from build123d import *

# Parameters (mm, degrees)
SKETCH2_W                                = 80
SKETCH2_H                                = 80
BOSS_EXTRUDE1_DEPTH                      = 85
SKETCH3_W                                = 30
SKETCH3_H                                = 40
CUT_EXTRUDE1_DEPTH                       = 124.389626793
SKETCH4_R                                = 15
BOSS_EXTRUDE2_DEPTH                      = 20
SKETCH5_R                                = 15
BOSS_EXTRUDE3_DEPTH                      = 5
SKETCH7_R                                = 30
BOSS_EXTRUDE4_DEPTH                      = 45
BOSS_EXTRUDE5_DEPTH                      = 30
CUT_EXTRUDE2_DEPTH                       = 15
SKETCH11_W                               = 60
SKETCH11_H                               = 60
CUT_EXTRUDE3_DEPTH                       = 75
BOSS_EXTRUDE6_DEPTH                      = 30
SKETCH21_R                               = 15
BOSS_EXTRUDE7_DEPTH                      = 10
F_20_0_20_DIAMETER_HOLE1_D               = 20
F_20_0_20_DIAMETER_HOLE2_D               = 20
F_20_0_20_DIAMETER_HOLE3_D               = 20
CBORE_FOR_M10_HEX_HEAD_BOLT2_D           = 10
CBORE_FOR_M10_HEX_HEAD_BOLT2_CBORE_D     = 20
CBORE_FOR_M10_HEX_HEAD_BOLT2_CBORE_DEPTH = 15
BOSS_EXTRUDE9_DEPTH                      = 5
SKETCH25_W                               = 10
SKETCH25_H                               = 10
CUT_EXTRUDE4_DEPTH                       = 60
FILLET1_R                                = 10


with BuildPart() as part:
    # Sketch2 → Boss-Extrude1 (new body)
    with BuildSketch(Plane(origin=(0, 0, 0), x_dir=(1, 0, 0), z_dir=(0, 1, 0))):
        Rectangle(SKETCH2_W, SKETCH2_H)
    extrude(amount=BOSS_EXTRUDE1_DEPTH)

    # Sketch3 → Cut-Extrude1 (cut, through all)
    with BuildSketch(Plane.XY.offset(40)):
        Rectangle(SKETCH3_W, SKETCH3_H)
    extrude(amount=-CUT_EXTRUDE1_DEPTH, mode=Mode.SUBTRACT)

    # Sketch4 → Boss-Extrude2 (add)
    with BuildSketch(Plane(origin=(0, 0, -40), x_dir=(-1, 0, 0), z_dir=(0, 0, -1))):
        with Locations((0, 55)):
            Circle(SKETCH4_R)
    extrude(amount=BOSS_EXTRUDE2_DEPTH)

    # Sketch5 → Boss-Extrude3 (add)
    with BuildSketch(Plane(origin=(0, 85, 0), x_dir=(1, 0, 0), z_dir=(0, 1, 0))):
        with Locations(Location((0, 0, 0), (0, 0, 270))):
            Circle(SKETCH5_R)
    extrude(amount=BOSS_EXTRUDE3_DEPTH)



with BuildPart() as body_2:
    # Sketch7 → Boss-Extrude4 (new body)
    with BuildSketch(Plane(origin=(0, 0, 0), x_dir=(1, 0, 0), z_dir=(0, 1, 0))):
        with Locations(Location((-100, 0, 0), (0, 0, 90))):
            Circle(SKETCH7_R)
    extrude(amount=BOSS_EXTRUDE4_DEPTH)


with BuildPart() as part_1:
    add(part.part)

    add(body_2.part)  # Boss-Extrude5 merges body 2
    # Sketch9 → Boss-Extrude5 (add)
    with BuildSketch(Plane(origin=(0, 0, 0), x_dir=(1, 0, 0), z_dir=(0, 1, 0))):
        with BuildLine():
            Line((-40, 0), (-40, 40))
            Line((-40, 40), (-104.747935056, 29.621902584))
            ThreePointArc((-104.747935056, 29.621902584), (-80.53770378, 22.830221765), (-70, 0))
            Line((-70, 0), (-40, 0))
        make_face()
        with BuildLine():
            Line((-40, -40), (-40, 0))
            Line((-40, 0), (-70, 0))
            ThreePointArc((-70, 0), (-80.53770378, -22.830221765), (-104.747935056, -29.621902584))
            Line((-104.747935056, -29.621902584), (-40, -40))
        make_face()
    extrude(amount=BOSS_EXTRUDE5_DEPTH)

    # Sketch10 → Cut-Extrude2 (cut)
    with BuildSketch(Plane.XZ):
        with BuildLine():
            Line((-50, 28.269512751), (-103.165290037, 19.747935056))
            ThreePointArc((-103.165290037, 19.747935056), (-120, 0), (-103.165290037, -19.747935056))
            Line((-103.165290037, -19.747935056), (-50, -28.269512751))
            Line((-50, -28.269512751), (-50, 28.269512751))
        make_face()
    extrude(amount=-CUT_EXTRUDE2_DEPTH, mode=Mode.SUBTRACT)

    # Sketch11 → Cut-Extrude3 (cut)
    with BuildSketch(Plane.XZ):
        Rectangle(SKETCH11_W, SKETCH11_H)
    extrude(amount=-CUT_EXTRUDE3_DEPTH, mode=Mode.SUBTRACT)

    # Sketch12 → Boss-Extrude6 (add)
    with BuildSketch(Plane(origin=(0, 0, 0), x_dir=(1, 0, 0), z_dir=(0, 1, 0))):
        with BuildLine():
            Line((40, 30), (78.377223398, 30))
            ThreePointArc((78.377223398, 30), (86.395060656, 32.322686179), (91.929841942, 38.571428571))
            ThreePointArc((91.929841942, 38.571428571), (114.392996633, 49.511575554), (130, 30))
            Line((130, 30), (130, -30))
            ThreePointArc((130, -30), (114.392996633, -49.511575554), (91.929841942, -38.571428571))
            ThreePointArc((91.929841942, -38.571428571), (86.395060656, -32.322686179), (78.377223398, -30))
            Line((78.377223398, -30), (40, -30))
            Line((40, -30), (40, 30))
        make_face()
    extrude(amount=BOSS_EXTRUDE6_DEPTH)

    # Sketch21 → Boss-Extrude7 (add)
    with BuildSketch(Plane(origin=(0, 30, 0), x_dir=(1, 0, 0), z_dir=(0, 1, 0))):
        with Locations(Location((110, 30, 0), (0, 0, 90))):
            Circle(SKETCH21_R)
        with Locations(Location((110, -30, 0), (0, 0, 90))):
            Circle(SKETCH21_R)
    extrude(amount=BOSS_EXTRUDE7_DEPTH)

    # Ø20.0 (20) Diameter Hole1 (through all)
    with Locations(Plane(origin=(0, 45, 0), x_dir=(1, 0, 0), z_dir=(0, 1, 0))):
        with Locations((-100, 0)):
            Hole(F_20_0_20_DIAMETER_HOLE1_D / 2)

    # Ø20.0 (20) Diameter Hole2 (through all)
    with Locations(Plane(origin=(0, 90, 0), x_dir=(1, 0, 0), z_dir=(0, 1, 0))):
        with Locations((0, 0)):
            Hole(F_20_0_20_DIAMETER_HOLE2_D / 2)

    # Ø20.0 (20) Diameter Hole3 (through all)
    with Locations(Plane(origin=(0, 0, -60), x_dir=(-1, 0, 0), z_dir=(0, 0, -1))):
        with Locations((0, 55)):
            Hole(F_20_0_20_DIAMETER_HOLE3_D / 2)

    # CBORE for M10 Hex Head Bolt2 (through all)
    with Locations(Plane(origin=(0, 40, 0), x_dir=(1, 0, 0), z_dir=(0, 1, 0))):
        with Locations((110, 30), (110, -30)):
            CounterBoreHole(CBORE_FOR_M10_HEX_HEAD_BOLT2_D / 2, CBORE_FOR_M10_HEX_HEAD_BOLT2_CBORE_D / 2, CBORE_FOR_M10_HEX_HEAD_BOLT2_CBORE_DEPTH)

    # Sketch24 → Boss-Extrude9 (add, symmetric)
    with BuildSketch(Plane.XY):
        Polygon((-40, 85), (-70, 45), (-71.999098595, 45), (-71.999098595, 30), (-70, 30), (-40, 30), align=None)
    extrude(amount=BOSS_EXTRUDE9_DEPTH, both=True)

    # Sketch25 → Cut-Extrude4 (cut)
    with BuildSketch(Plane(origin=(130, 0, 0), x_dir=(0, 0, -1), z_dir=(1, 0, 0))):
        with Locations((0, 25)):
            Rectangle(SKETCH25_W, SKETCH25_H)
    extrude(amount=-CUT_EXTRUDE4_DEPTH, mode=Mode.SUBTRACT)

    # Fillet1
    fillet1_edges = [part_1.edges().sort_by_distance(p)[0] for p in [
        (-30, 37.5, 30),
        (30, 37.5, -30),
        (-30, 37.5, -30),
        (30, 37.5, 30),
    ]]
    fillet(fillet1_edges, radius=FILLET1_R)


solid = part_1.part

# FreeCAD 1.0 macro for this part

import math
import FreeCAD as App
import Part
import Sketcher
Q = App.Units.Quantity


def edges_at(feature, points):
    """Names of the edges that pass closest to the given points."""
    edges = feature.Shape.Edges
    near = lambda p: min(range(len(edges)), key=lambda i: edges[i].distToShape(Part.Vertex(*p))[0])
    return sorted({f"Edge{near(p) + 1}" for p in points})

doc = App.newDocument("Part")
params = doc.addObject("Spreadsheet::Sheet", "Params")
for row, (alias, value) in enumerate([
    ("sketch1_width", "80 mm"),
    ("pad1_length", "85 mm"),
    ("sketch2_width", "30 mm"),
    ("sketch2_height", "40 mm"),
    ("sketch3_diameter", "30 mm"),
    ("pad2_length", "20 mm"),
    ("sketch4_diameter", "30 mm"),
    ("pad3_length", "5 mm"),
    ("sketch5_diameter", "60 mm"),
    ("pad4_length", "45 mm"),
    ("sketch6_radius", "30 mm"),
    ("sketch6_height", "80 mm"),
    ("pad5_length", "30 mm"),
    ("sketch7_radius", "20 mm"),
    ("pocket2_length", "15 mm"),
    ("sketch8_width", "60 mm"),
    ("pocket3_length", "75 mm"),
    ("sketch9_radius", "15 mm"),
    ("sketch9_radius2", "20 mm"),
    ("sketch9_height", "60 mm"),
    ("pad6_length", "30 mm"),
    ("sketch10_diameter", "30 mm"),
    ("pad7_length", "10 mm"),
    ("sketch11_diameter", "20 mm"),
    ("hole_diameter", "20 mm"),
    ("sketch12_diameter", "20 mm"),
    ("hole2_diameter", "20 mm"),
    ("sketch13_diameter", "20 mm"),
    ("hole3_diameter", "20 mm"),
    ("sketch14_diameter", "10 mm"),
    ("hole4_diameter", "10 mm"),
    ("hole4_cbore_diameter", "20 mm"),
    ("hole4_cbore_depth", "15 mm"),
    ("sketch15_height", "15 mm"),
    ("sketch15_height2", "55 mm"),
    ("sketch15_length", "50 mm"),
    ("pad8_length", "10 mm"),
    ("sketch16_width", "10 mm"),
    ("pocket4_length", "60 mm"),
    ("fillet_radius", "10 mm"),
], start=1):
    params.set(f"A{row}", alias)
    params.set(f"B{row}", "=" + value)
    params.setAlias(f"B{row}", alias)

body = doc.addObject("PartDesign::Body", "Body")

# Sketch on XZ plane
sketch1 = body.newObject("Sketcher::SketchObject", "Sketch")
sketch1.AttachmentSupport = (doc.getObject("XZ_Plane"), [""])
sketch1.MapMode = "FlatFace"
sketch1.addGeometry([
    Part.LineSegment(App.Vector(-40, -40, 0), App.Vector(-40, 40, 0)),
    Part.LineSegment(App.Vector(-40, 40, 0), App.Vector(40, 40, 0)),
    Part.LineSegment(App.Vector(40, 40, 0), App.Vector(40, -40, 0)),
    Part.LineSegment(App.Vector(40, -40, 0), App.Vector(-40, -40, 0)),
], False)
sketch1.addConstraint([
    Sketcher.Constraint("Coincident", 0, 2, 1, 1),
    Sketcher.Constraint("Coincident", 1, 2, 2, 1),
    Sketcher.Constraint("Coincident", 2, 2, 3, 1),
    Sketcher.Constraint("Coincident", 3, 2, 0, 1),
    Sketcher.Constraint("Vertical", 0),
    Sketcher.Constraint("Horizontal", 1),
    Sketcher.Constraint("Vertical", 2),
    Sketcher.Constraint("Horizontal", 3),
    Sketcher.Constraint("Symmetric", 0, 2, 2, 2, -1, 1),
    Sketcher.Constraint("Equal", 3, 0),
    Sketcher.Constraint("DistanceX", 1, 1, 1, 2, Q("80 mm")),
])
sketch1.setExpression("Constraints[10]", "Params.sketch1_width")
pad1 = body.newObject("PartDesign::Pad", "Pad")
pad1.Profile = sketch1
pad1.setExpression("Length", "Params.pad1_length")
pad1.Reversed = True

# Sketch on XY plane
sketch2 = body.newObject("Sketcher::SketchObject", "Sketch001")
sketch2.AttachmentSupport = (doc.getObject("XY_Plane"), [""])
sketch2.MapMode = "FlatFace"
sketch2.AttachmentOffset = App.Placement(App.Vector(0, 0, 40), App.Rotation())
sketch2.addGeometry([
    Part.LineSegment(App.Vector(-15, 20, 0), App.Vector(-15, -20, 0)),
    Part.LineSegment(App.Vector(-15, -20, 0), App.Vector(15, -20, 0)),
    Part.LineSegment(App.Vector(15, -20, 0), App.Vector(15, 20, 0)),
    Part.LineSegment(App.Vector(15, 20, 0), App.Vector(-15, 20, 0)),
], False)
sketch2.addConstraint([
    Sketcher.Constraint("Coincident", 0, 2, 1, 1),
    Sketcher.Constraint("Coincident", 1, 2, 2, 1),
    Sketcher.Constraint("Coincident", 2, 2, 3, 1),
    Sketcher.Constraint("Coincident", 3, 2, 0, 1),
    Sketcher.Constraint("Vertical", 0),
    Sketcher.Constraint("Horizontal", 1),
    Sketcher.Constraint("Vertical", 2),
    Sketcher.Constraint("Horizontal", 3),
    Sketcher.Constraint("Symmetric", 0, 2, 2, 2, -1, 1),
    Sketcher.Constraint("DistanceX", 1, 1, 1, 2, Q("30 mm")),
    Sketcher.Constraint("DistanceY", 0, 2, 0, 1, Q("40 mm")),
])
sketch2.setExpression("Constraints[9]", "Params.sketch2_width")
sketch2.setExpression("Constraints[10]", "Params.sketch2_height")
pocket1 = body.newObject("PartDesign::Pocket", "Pocket")
pocket1.Profile = sketch2
pocket1.Type = "ThroughAll"

# Sketch on XY plane
sketch3 = body.newObject("Sketcher::SketchObject", "Sketch002")
sketch3.AttachmentSupport = (doc.getObject("XY_Plane"), [""])
sketch3.MapMode = "FlatFace"
sketch3.AttachmentOffset = App.Placement(App.Vector(0, 0, -40), App.Rotation())
sketch3.addGeometry(Part.Circle(App.Vector(0, 55, 0), App.Vector(0, 0, 1), 15), False)
sketch3.addConstraint([
    Sketcher.Constraint("PointOnObject", 0, 3, -2),
    Sketcher.Constraint("Diameter", 0, Q("30 mm")),
    Sketcher.Constraint("DistanceY", -1, 1, 0, 3, Q("55 mm")),
])
sketch3.setExpression("Constraints[1]", "Params.sketch3_diameter")
pad2 = body.newObject("PartDesign::Pad", "Pad001")
pad2.Profile = sketch3
pad2.setExpression("Length", "Params.pad2_length")
pad2.Reversed = True

# Sketch on XZ plane
sketch4 = body.newObject("Sketcher::SketchObject", "Sketch003")
sketch4.AttachmentSupport = (doc.getObject("XZ_Plane"), [""])
sketch4.MapMode = "FlatFace"
sketch4.AttachmentOffset = App.Placement(App.Vector(0, 0, -85), App.Rotation())
sketch4.addGeometry(Part.Circle(App.Vector(0, 0, 0), App.Vector(0, 0, 1), 15), False)
sketch4.addConstraint([
    Sketcher.Constraint("Coincident", 0, 3, -1, 1),
    Sketcher.Constraint("Diameter", 0, Q("30 mm")),
])
sketch4.setExpression("Constraints[1]", "Params.sketch4_diameter")
pad3 = body.newObject("PartDesign::Pad", "Pad002")
pad3.Profile = sketch4
pad3.setExpression("Length", "Params.pad3_length")
pad3.Reversed = True
body2 = doc.addObject("PartDesign::Body", "Body001")

# Sketch on XZ plane
sketch5 = body2.newObject("Sketcher::SketchObject", "Sketch004")
sketch5.AttachmentSupport = (doc.getObject("XZ_Plane001"), [""])
sketch5.MapMode = "FlatFace"
sketch5.addGeometry(Part.Circle(App.Vector(-100, 0, 0), App.Vector(0, 0, 1), 30), False)
sketch5.addConstraint([
    Sketcher.Constraint("PointOnObject", 0, 3, -1),
    Sketcher.Constraint("Diameter", 0, Q("60 mm")),
    Sketcher.Constraint("DistanceX", 0, 3, -1, 1, Q("100 mm")),
])
sketch5.setExpression("Constraints[1]", "Params.sketch5_diameter")
pad4 = body2.newObject("PartDesign::Pad", "Pad003")
pad4.Profile = sketch5
pad4.setExpression("Length", "Params.pad4_length")
pad4.Reversed = True
body.AllowCompound = True
doc.recompute()

boolean = body.newObject("PartDesign::Boolean", "Boolean")
boolean.Type = "Fuse"
boolean.addObjects([body2])

# Sketch on XZ plane
sketch6 = body.newObject("Sketcher::SketchObject", "Sketch005")
sketch6.AttachmentSupport = (doc.getObject("XZ_Plane"), [""])
sketch6.MapMode = "FlatFace"
sketch6.addGeometry([
    Part.LineSegment(App.Vector(-40, -40, 0), App.Vector(-105, -30, 0)),  # 0
    Part.ArcOfCircle(Part.Circle(App.Vector(-100, 0, 0), App.Vector(0, 0, 1), 30), math.radians(-99), math.radians(0)),  # 1
    Part.ArcOfCircle(Part.Circle(App.Vector(-100, 0, 0), App.Vector(0, 0, 1), 30), math.radians(0), math.radians(99)),  # 2
    Part.LineSegment(App.Vector(-105, 30, 0), App.Vector(-40, 40, 0)),  # 3
    Part.LineSegment(App.Vector(-40, 40, 0), App.Vector(-40, -40, 0)),  # 4
], False)
sketch6.addConstraint([
    Sketcher.Constraint("Tangent", 0, 2, 1, 1),
    Sketcher.Constraint("Tangent", 1, 2, 2, 1),
    Sketcher.Constraint("Tangent", 2, 2, 3, 1),
    Sketcher.Constraint("Coincident", 3, 2, 4, 1),
    Sketcher.Constraint("Coincident", 4, 2, 0, 1),
    Sketcher.Constraint("Vertical", 4),
    Sketcher.Constraint("Equal", 1, 2),
    Sketcher.Constraint("Symmetric", 0, 2, 2, 2, -1),
    Sketcher.Constraint("PointOnObject", 1, 2, -1),
    Sketcher.Constraint("Radius", 1, Q("30 mm")),
    Sketcher.Constraint("DistanceY", 4, 2, 4, 1, Q("80 mm")),
    Sketcher.Constraint("DistanceX", 1, 3, -1, 1, Q("100 mm")),
    Sketcher.Constraint("DistanceX", 3, 2, -1, 1, Q("40 mm")),
])
sketch6.setExpression("Constraints[9]", "Params.sketch6_radius")
sketch6.setExpression("Constraints[10]", "Params.sketch6_height")
pad5 = body.newObject("PartDesign::Pad", "Pad004")
pad5.Profile = sketch6
pad5.setExpression("Length", "Params.pad5_length")
pad5.Reversed = True

# Sketch on XZ plane
sketch7 = body.newObject("Sketcher::SketchObject", "Sketch006")
sketch7.AttachmentSupport = (doc.getObject("XZ_Plane"), [""])
sketch7.MapMode = "FlatFace"
sketch7.addGeometry([
    Part.LineSegment(App.Vector(-50, 28, 0), App.Vector(-103, 20, 0)),
    Part.ArcOfCircle(Part.Circle(App.Vector(-100, 0, 0), App.Vector(0, 0, 1), 20), math.radians(99), math.radians(261)),
    Part.LineSegment(App.Vector(-103, -20, 0), App.Vector(-50, -28, 0)),
    Part.LineSegment(App.Vector(-50, -28, 0), App.Vector(-50, 28, 0)),
], False)
sketch7.addConstraint([
    Sketcher.Constraint("Tangent", 0, 2, 1, 1),
    Sketcher.Constraint("Tangent", 1, 2, 2, 1),
    Sketcher.Constraint("Coincident", 2, 2, 3, 1),
    Sketcher.Constraint("Coincident", 3, 2, 0, 1),
    Sketcher.Constraint("Vertical", 3),
    Sketcher.Constraint("Symmetric", 0, 2, 1, 2, -1),
    Sketcher.Constraint("Radius", 1, Q("20 mm")),
    Sketcher.Constraint("DistanceX", 1, 3, -1, 1, Q("100 mm")),
    Sketcher.Constraint("DistanceX", 2, 2, -1, 1, Q("50 mm")),
    Sketcher.Constraint("DistanceY", 3, 1, 3, 2, Q("56.539026 mm")),
])
sketch7.setExpression("Constraints[6]", "Params.sketch7_radius")
pocket2 = body.newObject("PartDesign::Pocket", "Pocket001")
pocket2.Profile = sketch7
pocket2.setExpression("Length", "Params.pocket2_length")

# Sketch on XZ plane
sketch8 = body.newObject("Sketcher::SketchObject", "Sketch007")
sketch8.AttachmentSupport = (doc.getObject("XZ_Plane"), [""])
sketch8.MapMode = "FlatFace"
sketch8.addGeometry([
    Part.LineSegment(App.Vector(-30, 30, 0), App.Vector(-30, -30, 0)),
    Part.LineSegment(App.Vector(-30, -30, 0), App.Vector(30, -30, 0)),
    Part.LineSegment(App.Vector(30, -30, 0), App.Vector(30, 30, 0)),
    Part.LineSegment(App.Vector(30, 30, 0), App.Vector(-30, 30, 0)),
], False)
sketch8.addConstraint([
    Sketcher.Constraint("Coincident", 0, 2, 1, 1),
    Sketcher.Constraint("Coincident", 1, 2, 2, 1),
    Sketcher.Constraint("Coincident", 2, 2, 3, 1),
    Sketcher.Constraint("Coincident", 3, 2, 0, 1),
    Sketcher.Constraint("Vertical", 0),
    Sketcher.Constraint("Horizontal", 1),
    Sketcher.Constraint("Vertical", 2),
    Sketcher.Constraint("Horizontal", 3),
    Sketcher.Constraint("Symmetric", 0, 2, 2, 2, -1, 1),
    Sketcher.Constraint("Equal", 3, 0),
    Sketcher.Constraint("DistanceX", 1, 1, 1, 2, Q("60 mm")),
])
sketch8.setExpression("Constraints[10]", "Params.sketch8_width")
pocket3 = body.newObject("PartDesign::Pocket", "Pocket002")
pocket3.Profile = sketch8
pocket3.setExpression("Length", "Params.pocket3_length")

# Sketch on XZ plane
sketch9 = body.newObject("Sketcher::SketchObject", "Sketch008")
sketch9.AttachmentSupport = (doc.getObject("XZ_Plane"), [""])
sketch9.MapMode = "FlatFace"
sketch9.addGeometry([
    Part.LineSegment(App.Vector(78, -30, 0), App.Vector(40, -30, 0)),  # 0
    Part.LineSegment(App.Vector(40, -30, 0), App.Vector(40, 30, 0)),  # 1
    Part.LineSegment(App.Vector(40, 30, 0), App.Vector(78, 30, 0)),  # 2
    Part.ArcOfCircle(Part.Circle(App.Vector(78, 45, 0), App.Vector(0, 0, 1), 15), math.radians(-90), math.radians(-25)),  # 3
    Part.ArcOfCircle(Part.Circle(App.Vector(110, 30, 0), App.Vector(0, 0, 1), 20), math.radians(0), math.radians(155)),  # 4
    Part.LineSegment(App.Vector(130, 30, 0), App.Vector(130, -30, 0)),  # 5
    Part.ArcOfCircle(Part.Circle(App.Vector(110, -30, 0), App.Vector(0, 0, 1), 20), math.radians(-155), math.radians(0)),  # 6
    Part.ArcOfCircle(Part.Circle(App.Vector(78, -45, 0), App.Vector(0, 0, 1), 15), math.radians(25), math.radians(90)),  # 7
], False)
sketch9.addConstraint([
    Sketcher.Constraint("Coincident", 0, 2, 1, 1),
    Sketcher.Constraint("Coincident", 1, 2, 2, 1),
    Sketcher.Constraint("Tangent", 2, 2, 3, 1),
    Sketcher.Constraint("Tangent", 3, 2, 4, 2),
    Sketcher.Constraint("Tangent", 4, 1, 5, 1),
    Sketcher.Constraint("Tangent", 5, 2, 6, 2),
    Sketcher.Constraint("Tangent", 6, 1, 7, 1),
    Sketcher.Constraint("Tangent", 7, 2, 0, 1),
    Sketcher.Constraint("Horizontal", 0),
    Sketcher.Constraint("Vertical", 1),
    Sketcher.Constraint("Horizontal", 2),
    Sketcher.Constraint("Vertical", 5),
    Sketcher.Constraint("Equal", 4, 6),
    Sketcher.Constraint("Equal", 3, 7),
    Sketcher.Constraint("Symmetric", 3, 3, 7, 3, -1),
    Sketcher.Constraint("Horizontal", 6, 3, 0, 2),
    Sketcher.Constraint("Radius", 3, Q("15 mm")),
    Sketcher.Constraint("Radius", 4, Q("20 mm")),
    Sketcher.Constraint("DistanceY", 1, 1, 1, 2, Q("60 mm")),
    Sketcher.Constraint("DistanceX", -1, 1, 4, 3, Q("110 mm")),
    Sketcher.Constraint("DistanceX", -1, 1, 0, 2, Q("40 mm")),
])
sketch9.setExpression("Constraints[16]", "Params.sketch9_radius")
sketch9.setExpression("Constraints[17]", "Params.sketch9_radius2")
sketch9.setExpression("Constraints[18]", "Params.sketch9_height")
pad6 = body.newObject("PartDesign::Pad", "Pad005")
pad6.Profile = sketch9
pad6.setExpression("Length", "Params.pad6_length")
pad6.Reversed = True

# Sketch on XZ plane
sketch10 = body.newObject("Sketcher::SketchObject", "Sketch009")
sketch10.AttachmentSupport = (doc.getObject("XZ_Plane"), [""])
sketch10.MapMode = "FlatFace"
sketch10.AttachmentOffset = App.Placement(App.Vector(0, 0, -30), App.Rotation())
sketch10.addGeometry([
    Part.Circle(App.Vector(110, -30, 0), App.Vector(0, 0, 1), 15),
    Part.Circle(App.Vector(110, 30, 0), App.Vector(0, 0, 1), 15),
], False)
sketch10.addConstraint([
    Sketcher.Constraint("Equal", 0, 1),
    Sketcher.Constraint("Symmetric", 0, 3, 1, 3, -1),
    Sketcher.Constraint("Diameter", 0, Q("30 mm")),
    Sketcher.Constraint("DistanceX", -1, 1, 0, 3, Q("110 mm")),
    Sketcher.Constraint("DistanceY", 0, 3, -1, 1, Q("30 mm")),
])
sketch10.setExpression("Constraints[2]", "Params.sketch10_diameter")
pad7 = body.newObject("PartDesign::Pad", "Pad006")
pad7.Profile = sketch10
pad7.setExpression("Length", "Params.pad7_length")
pad7.Reversed = True

# Sketch on XZ plane
sketch11 = body.newObject("Sketcher::SketchObject", "Sketch010")
sketch11.AttachmentSupport = (doc.getObject("XZ_Plane"), [""])
sketch11.MapMode = "FlatFace"
sketch11.AttachmentOffset = App.Placement(App.Vector(0, 0, -45), App.Rotation())
sketch11.addGeometry(Part.Circle(App.Vector(-100, 0, 0), App.Vector(0, 0, 1), 10), False)
sketch11.addConstraint([
    Sketcher.Constraint("PointOnObject", 0, 3, -1),
    Sketcher.Constraint("Diameter", 0, Q("20 mm")),
    Sketcher.Constraint("DistanceX", 0, 3, -1, 1, Q("100 mm")),
])
sketch11.setExpression("Constraints[1]", "Params.sketch11_diameter")
doc.recompute()
hole = body.newObject("PartDesign::Hole", "Hole")
hole.Profile = sketch11
hole.ThreadType = "None"
hole.setExpression("Diameter", "Params.hole_diameter")
hole.DepthType = "ThroughAll"
hole.Reversed = True

# Sketch on XZ plane
sketch12 = body.newObject("Sketcher::SketchObject", "Sketch011")
sketch12.AttachmentSupport = (doc.getObject("XZ_Plane"), [""])
sketch12.MapMode = "FlatFace"
sketch12.AttachmentOffset = App.Placement(App.Vector(0, 0, -90), App.Rotation())
sketch12.addGeometry(Part.Circle(App.Vector(0, 0, 0), App.Vector(0, 0, 1), 10), False)
sketch12.addConstraint([
    Sketcher.Constraint("Coincident", 0, 3, -1, 1),
    Sketcher.Constraint("Diameter", 0, Q("20 mm")),
])
sketch12.setExpression("Constraints[1]", "Params.sketch12_diameter")
doc.recompute()
hole2 = body.newObject("PartDesign::Hole", "Hole001")
hole2.Profile = sketch12
hole2.ThreadType = "None"
hole2.setExpression("Diameter", "Params.hole2_diameter")
hole2.DepthType = "ThroughAll"
hole2.Reversed = True

# Sketch on XY plane
sketch13 = body.newObject("Sketcher::SketchObject", "Sketch012")
sketch13.AttachmentSupport = (doc.getObject("XY_Plane"), [""])
sketch13.MapMode = "FlatFace"
sketch13.AttachmentOffset = App.Placement(App.Vector(0, 0, -60), App.Rotation())
sketch13.addGeometry(Part.Circle(App.Vector(0, 55, 0), App.Vector(0, 0, 1), 10), False)
sketch13.addConstraint([
    Sketcher.Constraint("PointOnObject", 0, 3, -2),
    Sketcher.Constraint("Diameter", 0, Q("20 mm")),
    Sketcher.Constraint("DistanceY", -1, 1, 0, 3, Q("55 mm")),
])
sketch13.setExpression("Constraints[1]", "Params.sketch13_diameter")
doc.recompute()
hole3 = body.newObject("PartDesign::Hole", "Hole002")
hole3.Profile = sketch13
hole3.ThreadType = "None"
hole3.setExpression("Diameter", "Params.hole3_diameter")
hole3.DepthType = "ThroughAll"
hole3.Reversed = True

# Sketch on XZ plane
sketch14 = body.newObject("Sketcher::SketchObject", "Sketch013")
sketch14.AttachmentSupport = (doc.getObject("XZ_Plane"), [""])
sketch14.MapMode = "FlatFace"
sketch14.AttachmentOffset = App.Placement(App.Vector(0, 0, -40), App.Rotation())
sketch14.addGeometry([
    Part.Circle(App.Vector(110, -30, 0), App.Vector(0, 0, 1), 5),
    Part.Circle(App.Vector(110, 30, 0), App.Vector(0, 0, 1), 5),
], False)
sketch14.addConstraint([
    Sketcher.Constraint("Equal", 0, 1),
    Sketcher.Constraint("Symmetric", 0, 3, 1, 3, -1),
    Sketcher.Constraint("Diameter", 0, Q("10 mm")),
    Sketcher.Constraint("DistanceX", -1, 1, 0, 3, Q("110 mm")),
    Sketcher.Constraint("DistanceY", 0, 3, -1, 1, Q("30 mm")),
])
sketch14.setExpression("Constraints[2]", "Params.sketch14_diameter")
doc.recompute()
hole4 = body.newObject("PartDesign::Hole", "Hole003")
hole4.Profile = sketch14
hole4.ThreadType = "None"
hole4.setExpression("Diameter", "Params.hole4_diameter")
hole4.DepthType = "ThroughAll"
hole4.HoleCutType = "Counterbore"
hole4.setExpression("HoleCutDiameter", "Params.hole4_cbore_diameter")
hole4.setExpression("HoleCutDepth", "Params.hole4_cbore_depth")
hole4.Reversed = True

# Sketch on XY plane
sketch15 = body.newObject("Sketcher::SketchObject", "Sketch014")
sketch15.AttachmentSupport = (doc.getObject("XY_Plane"), [""])
sketch15.MapMode = "FlatFace"
sketch15.addGeometry([
    Part.LineSegment(App.Vector(-40, 85, 0), App.Vector(-70, 45, 0)),  # 0
    Part.LineSegment(App.Vector(-70, 45, 0), App.Vector(-72, 45, 0)),  # 1
    Part.LineSegment(App.Vector(-72, 45, 0), App.Vector(-72, 30, 0)),  # 2
    Part.LineSegment(App.Vector(-72, 30, 0), App.Vector(-40, 30, 0)),  # 3
    Part.LineSegment(App.Vector(-40, 30, 0), App.Vector(-40, 85, 0)),  # 4
], False)
sketch15.addConstraint([
    Sketcher.Constraint("Coincident", 0, 2, 1, 1),
    Sketcher.Constraint("Coincident", 1, 2, 2, 1),
    Sketcher.Constraint("Coincident", 2, 2, 3, 1),
    Sketcher.Constraint("Coincident", 3, 2, 4, 1),
    Sketcher.Constraint("Coincident", 4, 2, 0, 1),
    Sketcher.Constraint("Horizontal", 1),
    Sketcher.Constraint("Vertical", 2),
    Sketcher.Constraint("Horizontal", 3),
    Sketcher.Constraint("Vertical", 4),
    Sketcher.Constraint("DistanceY", 2, 2, 2, 1, Q("15 mm")),
    Sketcher.Constraint("DistanceY", 4, 1, 4, 2, Q("55 mm")),
    Sketcher.Constraint("Distance", 0, Q("50 mm")),
    Sketcher.Constraint("DistanceX", 0, 2, -1, 1, Q("70 mm")),
    Sketcher.Constraint("DistanceY", -1, 1, 0, 2, Q("45 mm")),
    Sketcher.Constraint("DistanceX", 1, 2, 1, 1, Q("1.999099 mm")),
])
sketch15.setExpression("Constraints[9]", "Params.sketch15_height")
sketch15.setExpression("Constraints[10]", "Params.sketch15_height2")
sketch15.setExpression("Constraints[11]", "Params.sketch15_length")
pad8 = body.newObject("PartDesign::Pad", "Pad007")
pad8.Profile = sketch15
pad8.setExpression("Length", "Params.pad8_length")
pad8.Midplane = True

# Sketch on YZ plane
sketch16 = body.newObject("Sketcher::SketchObject", "Sketch015")
sketch16.AttachmentSupport = (doc.getObject("YZ_Plane"), [""])
sketch16.MapMode = "FlatFace"
sketch16.AttachmentOffset = App.Placement(App.Vector(0, 0, 130), App.Rotation())
sketch16.addGeometry([
    Part.LineSegment(App.Vector(30, 5, 0), App.Vector(20, 5, 0)),
    Part.LineSegment(App.Vector(20, 5, 0), App.Vector(20, -5, 0)),
    Part.LineSegment(App.Vector(20, -5, 0), App.Vector(30, -5, 0)),
    Part.LineSegment(App.Vector(30, -5, 0), App.Vector(30, 5, 0)),
], False)
sketch16.addConstraint([
    Sketcher.Constraint("Coincident", 0, 2, 1, 1),
    Sketcher.Constraint("Coincident", 1, 2, 2, 1),
    Sketcher.Constraint("Coincident", 2, 2, 3, 1),
    Sketcher.Constraint("Coincident", 3, 2, 0, 1),
    Sketcher.Constraint("Horizontal", 0),
    Sketcher.Constraint("Vertical", 1),
    Sketcher.Constraint("Horizontal", 2),
    Sketcher.Constraint("Vertical", 3),
    Sketcher.Constraint("Equal", 2, 1),
    Sketcher.Constraint("DistanceX", 0, 2, 0, 1, Q("10 mm")),
    Sketcher.Constraint("DistanceX", -1, 1, 0, 2, Q("20 mm")),
    Sketcher.Constraint("DistanceY", -1, 1, 0, 2, Q("5 mm")),
])
sketch16.setExpression("Constraints[9]", "Params.sketch16_width")
pocket4 = body.newObject("PartDesign::Pocket", "Pocket003")
pocket4.Profile = sketch16
pocket4.setExpression("Length", "Params.pocket4_length")
doc.recompute()

fillet = body.newObject("PartDesign::Fillet", "Fillet")
fillet.Base = (pocket4, edges_at(pocket4, [
    (-30, 37.5, 30),
    (30, 37.5, -30),
    (-30, 37.5, -30),
    (30, 37.5, 30),
]))
fillet.setExpression("Radius", "Params.fillet_radius")

doc.recompute()
